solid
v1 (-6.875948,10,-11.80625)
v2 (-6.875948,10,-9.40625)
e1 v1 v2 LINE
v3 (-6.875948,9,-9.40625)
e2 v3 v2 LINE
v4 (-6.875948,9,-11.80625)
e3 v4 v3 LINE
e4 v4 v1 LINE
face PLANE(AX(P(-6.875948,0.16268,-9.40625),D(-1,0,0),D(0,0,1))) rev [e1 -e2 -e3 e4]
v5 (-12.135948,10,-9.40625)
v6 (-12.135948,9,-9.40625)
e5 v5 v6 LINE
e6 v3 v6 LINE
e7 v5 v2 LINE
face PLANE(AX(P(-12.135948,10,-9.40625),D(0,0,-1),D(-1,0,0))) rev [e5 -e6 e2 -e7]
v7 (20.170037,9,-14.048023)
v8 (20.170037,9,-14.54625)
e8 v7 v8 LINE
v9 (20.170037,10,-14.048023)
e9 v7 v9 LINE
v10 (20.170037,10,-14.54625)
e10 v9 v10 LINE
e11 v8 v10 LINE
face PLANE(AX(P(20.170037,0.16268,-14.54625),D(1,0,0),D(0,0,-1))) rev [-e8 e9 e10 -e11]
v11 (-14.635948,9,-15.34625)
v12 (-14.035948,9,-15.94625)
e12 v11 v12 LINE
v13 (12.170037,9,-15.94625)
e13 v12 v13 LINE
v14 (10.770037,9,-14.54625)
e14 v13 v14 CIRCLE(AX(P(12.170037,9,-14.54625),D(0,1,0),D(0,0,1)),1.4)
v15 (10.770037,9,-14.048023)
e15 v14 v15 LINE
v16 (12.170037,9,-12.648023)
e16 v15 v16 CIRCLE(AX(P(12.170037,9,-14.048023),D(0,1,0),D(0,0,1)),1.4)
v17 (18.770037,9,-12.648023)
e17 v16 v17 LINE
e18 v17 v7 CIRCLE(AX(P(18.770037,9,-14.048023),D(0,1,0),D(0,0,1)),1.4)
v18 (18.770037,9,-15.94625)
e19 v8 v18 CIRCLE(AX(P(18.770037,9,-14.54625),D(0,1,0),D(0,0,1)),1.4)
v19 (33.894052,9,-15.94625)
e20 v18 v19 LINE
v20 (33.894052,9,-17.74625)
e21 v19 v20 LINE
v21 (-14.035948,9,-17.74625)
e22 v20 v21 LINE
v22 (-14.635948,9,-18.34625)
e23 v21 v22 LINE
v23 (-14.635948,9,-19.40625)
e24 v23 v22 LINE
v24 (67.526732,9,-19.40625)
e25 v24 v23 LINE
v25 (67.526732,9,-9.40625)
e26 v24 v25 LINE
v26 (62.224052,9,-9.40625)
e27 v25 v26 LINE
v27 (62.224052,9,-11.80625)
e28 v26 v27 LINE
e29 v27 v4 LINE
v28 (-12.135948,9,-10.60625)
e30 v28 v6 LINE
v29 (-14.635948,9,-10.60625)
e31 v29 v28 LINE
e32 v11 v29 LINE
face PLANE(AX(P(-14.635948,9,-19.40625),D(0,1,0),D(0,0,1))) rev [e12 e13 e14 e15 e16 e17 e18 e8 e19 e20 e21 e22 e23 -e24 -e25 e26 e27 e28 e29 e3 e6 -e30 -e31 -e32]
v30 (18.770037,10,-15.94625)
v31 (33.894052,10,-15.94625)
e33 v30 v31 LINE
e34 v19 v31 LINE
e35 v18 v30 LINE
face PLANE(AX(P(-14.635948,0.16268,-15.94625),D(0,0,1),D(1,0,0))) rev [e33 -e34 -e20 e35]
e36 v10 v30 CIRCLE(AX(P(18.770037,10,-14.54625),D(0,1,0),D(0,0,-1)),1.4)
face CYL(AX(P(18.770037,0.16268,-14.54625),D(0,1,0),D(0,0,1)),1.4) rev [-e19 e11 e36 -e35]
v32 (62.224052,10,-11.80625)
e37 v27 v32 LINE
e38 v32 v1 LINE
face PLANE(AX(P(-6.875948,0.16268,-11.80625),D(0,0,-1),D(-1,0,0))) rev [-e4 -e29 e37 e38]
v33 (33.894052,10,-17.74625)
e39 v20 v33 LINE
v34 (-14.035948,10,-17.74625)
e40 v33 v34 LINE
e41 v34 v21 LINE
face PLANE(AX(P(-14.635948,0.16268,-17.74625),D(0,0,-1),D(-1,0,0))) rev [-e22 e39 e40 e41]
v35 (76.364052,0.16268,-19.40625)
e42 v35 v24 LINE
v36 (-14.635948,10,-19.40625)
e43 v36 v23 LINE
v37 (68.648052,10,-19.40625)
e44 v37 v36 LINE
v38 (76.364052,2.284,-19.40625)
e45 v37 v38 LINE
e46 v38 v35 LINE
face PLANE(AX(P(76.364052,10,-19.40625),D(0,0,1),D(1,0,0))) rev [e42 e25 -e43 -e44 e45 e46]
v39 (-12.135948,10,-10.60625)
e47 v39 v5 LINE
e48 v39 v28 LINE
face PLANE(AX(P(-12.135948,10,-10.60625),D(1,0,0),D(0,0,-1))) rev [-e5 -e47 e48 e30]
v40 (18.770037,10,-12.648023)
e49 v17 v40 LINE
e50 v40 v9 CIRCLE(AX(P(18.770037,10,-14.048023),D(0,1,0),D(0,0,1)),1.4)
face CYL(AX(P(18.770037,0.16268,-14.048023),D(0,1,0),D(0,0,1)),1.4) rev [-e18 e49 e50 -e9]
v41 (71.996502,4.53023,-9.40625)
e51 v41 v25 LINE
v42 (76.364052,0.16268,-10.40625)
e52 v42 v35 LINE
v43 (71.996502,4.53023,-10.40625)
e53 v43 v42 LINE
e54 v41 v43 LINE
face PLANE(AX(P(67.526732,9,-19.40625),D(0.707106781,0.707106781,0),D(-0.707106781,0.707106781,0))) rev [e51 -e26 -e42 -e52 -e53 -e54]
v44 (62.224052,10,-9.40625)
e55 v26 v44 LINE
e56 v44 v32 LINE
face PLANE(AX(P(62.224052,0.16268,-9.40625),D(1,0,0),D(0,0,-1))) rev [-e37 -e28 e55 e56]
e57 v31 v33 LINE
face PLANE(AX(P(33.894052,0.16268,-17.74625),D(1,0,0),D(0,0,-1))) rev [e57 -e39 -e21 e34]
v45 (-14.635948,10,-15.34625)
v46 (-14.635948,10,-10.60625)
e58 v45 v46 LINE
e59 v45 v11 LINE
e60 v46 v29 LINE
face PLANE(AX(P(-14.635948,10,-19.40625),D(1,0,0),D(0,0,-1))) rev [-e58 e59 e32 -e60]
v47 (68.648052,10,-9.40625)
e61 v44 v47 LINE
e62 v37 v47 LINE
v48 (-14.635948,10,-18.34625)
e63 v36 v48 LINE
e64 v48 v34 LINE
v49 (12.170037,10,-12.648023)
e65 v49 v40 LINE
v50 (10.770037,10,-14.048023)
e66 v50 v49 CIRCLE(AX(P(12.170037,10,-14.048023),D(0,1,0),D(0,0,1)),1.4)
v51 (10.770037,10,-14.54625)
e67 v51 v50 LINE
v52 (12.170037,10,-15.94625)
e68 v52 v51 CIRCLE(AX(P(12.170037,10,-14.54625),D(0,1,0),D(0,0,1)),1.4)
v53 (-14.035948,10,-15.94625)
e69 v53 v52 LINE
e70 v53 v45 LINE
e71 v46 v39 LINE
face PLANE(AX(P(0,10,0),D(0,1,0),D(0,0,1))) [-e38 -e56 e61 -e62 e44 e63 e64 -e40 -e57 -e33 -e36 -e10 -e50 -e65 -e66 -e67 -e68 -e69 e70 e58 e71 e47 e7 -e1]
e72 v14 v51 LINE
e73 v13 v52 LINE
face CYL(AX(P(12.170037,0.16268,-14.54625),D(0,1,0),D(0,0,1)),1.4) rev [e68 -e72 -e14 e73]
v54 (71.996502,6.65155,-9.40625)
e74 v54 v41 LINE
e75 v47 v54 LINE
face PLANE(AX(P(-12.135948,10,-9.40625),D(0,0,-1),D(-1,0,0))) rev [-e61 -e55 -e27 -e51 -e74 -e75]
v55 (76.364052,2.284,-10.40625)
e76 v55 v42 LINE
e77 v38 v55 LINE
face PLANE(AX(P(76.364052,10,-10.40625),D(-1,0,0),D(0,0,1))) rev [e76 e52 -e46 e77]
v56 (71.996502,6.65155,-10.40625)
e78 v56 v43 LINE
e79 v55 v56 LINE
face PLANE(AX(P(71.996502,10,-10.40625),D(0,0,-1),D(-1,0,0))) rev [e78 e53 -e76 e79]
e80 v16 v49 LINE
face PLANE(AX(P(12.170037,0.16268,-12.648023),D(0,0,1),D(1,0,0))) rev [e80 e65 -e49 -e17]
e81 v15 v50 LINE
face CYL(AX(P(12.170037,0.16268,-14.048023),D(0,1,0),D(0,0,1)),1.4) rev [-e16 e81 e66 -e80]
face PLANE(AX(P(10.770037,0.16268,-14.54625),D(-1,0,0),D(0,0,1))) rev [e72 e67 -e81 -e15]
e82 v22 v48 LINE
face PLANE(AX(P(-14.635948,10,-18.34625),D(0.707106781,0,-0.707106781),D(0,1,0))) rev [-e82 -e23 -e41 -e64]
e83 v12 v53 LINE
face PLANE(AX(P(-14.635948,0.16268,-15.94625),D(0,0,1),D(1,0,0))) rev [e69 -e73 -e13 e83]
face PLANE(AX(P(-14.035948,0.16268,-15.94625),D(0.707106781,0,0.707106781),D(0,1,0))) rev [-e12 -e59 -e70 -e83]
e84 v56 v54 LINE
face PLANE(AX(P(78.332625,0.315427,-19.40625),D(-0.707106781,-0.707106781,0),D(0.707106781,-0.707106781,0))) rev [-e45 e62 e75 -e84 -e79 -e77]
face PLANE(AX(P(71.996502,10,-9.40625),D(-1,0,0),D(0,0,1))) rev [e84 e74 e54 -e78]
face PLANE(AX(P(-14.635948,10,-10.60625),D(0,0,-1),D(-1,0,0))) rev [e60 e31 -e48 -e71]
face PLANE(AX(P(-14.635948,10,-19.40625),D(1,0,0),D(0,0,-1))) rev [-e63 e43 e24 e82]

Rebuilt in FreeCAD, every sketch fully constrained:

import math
import FreeCAD as App
import Part
import Sketcher

V = App.Vector
Q = App.Units.Quantity


def edges_at(feature, points):
    """Names of the edges that pass closest to the given points."""
    edges = feature.Shape.Edges
    near = lambda p: min(range(len(edges)), key=lambda i: edges[i].distToShape(Part.Vertex(*p))[0])
    return sorted({f"Edge{near(p) + 1}" for p in points})


def add_polygon(sketch, points):
    """Adds a closed chain of lines whose ends are joined by coincident constraints."""
    first, n = sketch.GeometryCount, len(points)
    for a, b in zip(points, points[1:] + points[:1]):
        sketch.addGeometry(Part.LineSegment(App.Vector(*a, 0), App.Vector(*b, 0)), False)
    for i in range(n):
        sketch.addConstraint(Sketcher.Constraint("Coincident", first + i, 2, first + (i + 1) % n, 1))

doc = App.newDocument("Part")
params = doc.addObject("Spreadsheet::Sheet", "Params")
for row, (alias, value) in enumerate([
    ("sketch1_width", "91 mm"),
    ("sketch1_height", "1 mm"),
    ("sketch1_height2", "9 mm"),
    ("sketch1_width2", "2.5 mm"),
    ("sketch1_height3", "8.8 mm"),
    ("pad1_length", "10 mm"),
    ("sketch2_height", "9 mm"),
    ("sketch3_width", "69.1 mm"),
    ("sketch3_height", "1.8 mm"),
    ("sketch3_height2", "2.4 mm"),
    ("sketch3_width2", "48.53 mm"),
    ("sketch4_radius", "1.4 mm"),
    ("sketch4_width", "6.6 mm"),
    ("chamfer_size", "0.6 mm"),
], start=1):
    params.set(f"A{row}", alias)
    params.set(f"B{row}", "=" + value)
    params.setAlias(f"B{row}", alias)

body = doc.addObject("PartDesign::Body", "Body")

# Sketch on XZ plane
sketch1 = doc.addObject("Sketcher::SketchObject", "Sketch")
body.addObject(sketch1)
sketch1.AttachmentSupport = (doc.XZ_Plane, [""])
sketch1.MapMode = "FlatFace"
add_polygon(sketch1, [(-14.6, -19.4), (-14.6, -10.6), (-12.1, -10.6), (-12.1, -9.4), (72, -9.4), (72, -10.4), (76.4, -10.4), (76.4, -19.4)])  # lines 0-7
sketch1.addConstraint([
    Sketcher.Constraint("Vertical", 0),
    Sketcher.Constraint("Horizontal", 1),
    Sketcher.Constraint("Vertical", 2),
    Sketcher.Constraint("Horizontal", 3),
    Sketcher.Constraint("Vertical", 4),
    Sketcher.Constraint("Horizontal", 5),
    Sketcher.Constraint("Vertical", 6),
    Sketcher.Constraint("Horizontal", 7),
    Sketcher.Constraint("DistanceX", 7, 2, 7, 1, 91.0),
    Sketcher.Constraint("DistanceY", 4, 2, 4, 1, 1.0),
    Sketcher.Constraint("DistanceY", 6, 2, 6, 1, 9.0),
    Sketcher.Constraint("DistanceX", 1, 1, 1, 2, 2.5),
    Sketcher.Constraint("DistanceY", 0, 1, 0, 2, 8.8),
    Sketcher.Constraint("DistanceX", 3, 1, 3, 2, 84.13245),
    Sketcher.Constraint("DistanceX", 0, 2, -1, 1, 14.635948),
    Sketcher.Constraint("DistanceY", 0, 2, -1, 1, 10.60625),
])
sketch1.setExpression("Constraints[16]", "Params.sketch1_width")
sketch1.setExpression("Constraints[17]", "Params.sketch1_height")
sketch1.setExpression("Constraints[18]", "Params.sketch1_height2")
sketch1.setExpression("Constraints[19]", "Params.sketch1_width2")
sketch1.setExpression("Constraints[20]", "Params.sketch1_height3")
pad1 = doc.addObject("PartDesign::Pad", "Pad")
body.addObject(pad1)
pad1.Profile = sketch1
pad1.setExpression("Length", "Params.pad1_length")
pad1.Reversed = True

# Sketch on XY plane
sketch2 = doc.addObject("Sketcher::SketchObject", "Sketch001")
body.addObject(sketch2)
sketch2.AttachmentSupport = (doc.XY_Plane, [""])
sketch2.MapMode = "FlatFace"
sketch2.AttachmentOffset = App.Placement(V(0, 0, -9.40625), App.Rotation())
add_polygon(sketch2, [(68, 9), (-15, 9), (-15, 0), (77, 0)])  # lines 0-3
add_polygon(sketch2, [(67, 11), (78, 0), (78, 11)])  # lines 4-6
sketch2.addConstraint([
    Sketcher.Constraint("Horizontal", 0),
    Sketcher.Constraint("Vertical", 1),
    Sketcher.Constraint("Horizontal", 2),
    Sketcher.Constraint("Horizontal", 6),
    Sketcher.Constraint("PointOnObject", 1, 2, -1),
    Sketcher.Constraint("Parallel", 3, 4),
    Sketcher.Constraint("DistanceY", 1, 2, 1, 1, 9.0),
    Sketcher.Constraint("Angle", 3, Q("135 deg")),
    Sketcher.Constraint("DistanceX", 0, 2, 0, 1, 82.16268),
    Sketcher.Constraint("DistanceX", 6, 2, 6, 1, 10.96286),
    Sketcher.Constraint("DistanceX", -1, 1, 5, 2, 78.393598),
    Sketcher.Constraint("DistanceX", 0, 2, -1, 1, 14.635948),
    Sketcher.Constraint("Distance", 4, 15.417597),
    Sketcher.Constraint("DistanceY", -1, 1, 4, 2, 0.315427),
])
sketch2.setExpression("Constraints[13]", "Params.sketch2_height")
pocket1 = doc.addObject("PartDesign::Pocket", "Pocket")
body.addObject(pocket1)
pocket1.Profile = sketch2
pocket1.Type = "ThroughAll"

# Sketch on XZ plane
sketch3 = doc.addObject("Sketcher::SketchObject", "Sketch002")
body.addObject(sketch3)
sketch3.AttachmentSupport = (doc.XZ_Plane, [""])
sketch3.MapMode = "FlatFace"
sketch3.AttachmentOffset = App.Placement(V(0, 0, -10), App.Rotation())
add_polygon(sketch3, [(-14.6, -17.7), (-14.6, -15.9), (33.9, -15.9), (33.9, -17.7)])  # lines 0-3
add_polygon(sketch3, [(-6.9, -11.8), (-6.9, -9.4), (62.2, -9.4), (62.2, -11.8)])  # lines 4-7
sketch3.addConstraint([
    Sketcher.Constraint("Vertical", 0),
    Sketcher.Constraint("Horizontal", 1),
    Sketcher.Constraint("Vertical", 2),
    Sketcher.Constraint("Horizontal", 3),
    Sketcher.Constraint("Vertical", 4),
    Sketcher.Constraint("Horizontal", 5),
    Sketcher.Constraint("Vertical", 6),
    Sketcher.Constraint("Horizontal", 7),
    Sketcher.Constraint("DistanceX", 5, 1, 5, 2, 69.1),
    Sketcher.Constraint("DistanceY", 0, 1, 0, 2, 1.8),
    Sketcher.Constraint("DistanceY", 4, 1, 4, 2, 2.4),
    Sketcher.Constraint("DistanceX", 1, 1, 1, 2, 48.53),
    Sketcher.Constraint("DistanceX", 0, 2, 4, 2, 7.76),
    Sketcher.Constraint("DistanceY", 0, 2, 4, 2, 6.54),
    Sketcher.Constraint("DistanceX", 0, 2, -1, 1, 14.635948),
    Sketcher.Constraint("DistanceY", 0, 2, -1, 1, 15.94625),
])
sketch3.setExpression("Constraints[16]", "Params.sketch3_width")
sketch3.setExpression("Constraints[17]", "Params.sketch3_height")
sketch3.setExpression("Constraints[18]", "Params.sketch3_height2")
sketch3.setExpression("Constraints[19]", "Params.sketch3_width2")
pocket2 = doc.addObject("PartDesign::Pocket", "Pocket001")
body.addObject(pocket2)
pocket2.Profile = sketch3
pocket2.Type = "ThroughAll"
pocket2.Reversed = True

# Sketch on XZ plane
sketch4 = doc.addObject("Sketcher::SketchObject", "Sketch003")
body.addObject(sketch4)
sketch4.AttachmentSupport = (doc.XZ_Plane, [""])
sketch4.MapMode = "FlatFace"
sketch4.AttachmentOffset = App.Placement(V(0, 0, -10), App.Rotation())
sketch4.addGeometry([
    Part.LineSegment(V(18.77, -15.95, 0), V(12.17, -15.95, 0)),  # 0
    Part.ArcOfCircle(Part.Circle(V(12.17, -14.55, 0), V(0, 0, 1), 1.4), math.radians(180), math.radians(270)),  # 1
    Part.LineSegment(V(10.77, -14.55, 0), V(10.77, -14.05, 0)),  # 2
    Part.ArcOfCircle(Part.Circle(V(12.17, -14.05, 0), V(0, 0, 1), 1.4), math.radians(90), math.radians(180)),  # 3
    Part.LineSegment(V(12.17, -12.65, 0), V(18.77, -12.65, 0)),  # 4
    Part.ArcOfCircle(Part.Circle(V(18.77, -14.05, 0), V(0, 0, 1), 1.4), math.radians(0), math.radians(90)),  # 5
    Part.LineSegment(V(20.17, -14.05, 0), V(20.17, -14.55, 0)),  # 6
    Part.ArcOfCircle(Part.Circle(V(18.77, -14.55, 0), V(0, 0, 1), 1.4), math.radians(-90), math.radians(0)),  # 7
], False)
sketch4.addConstraint([
    Sketcher.Constraint("Tangent", 0, 2, 1, 2),
    Sketcher.Constraint("Tangent", 1, 1, 2, 1),
    Sketcher.Constraint("Tangent", 2, 2, 3, 2),
    Sketcher.Constraint("Tangent", 3, 1, 4, 1),
    Sketcher.Constraint("Tangent", 4, 2, 5, 2),
    Sketcher.Constraint("Tangent", 5, 1, 6, 1),
    Sketcher.Constraint("Tangent", 6, 2, 7, 2),
    Sketcher.Constraint("Tangent", 7, 1, 0, 1),
    Sketcher.Constraint("Horizontal", 0),
    Sketcher.Constraint("Vertical", 2),
    Sketcher.Constraint("Horizontal", 4),
    Sketcher.Constraint("Vertical", 6),
    Sketcher.Constraint("Equal", 1, 3),
    Sketcher.Constraint("Equal", 3, 5),
    Sketcher.Constraint("Equal", 5, 7),
    Sketcher.Constraint("Radius", 1, 1.4),
    Sketcher.Constraint("DistanceX", 0, 2, 0, 1, 6.6),
    Sketcher.Constraint("DistanceY", 2, 1, 2, 2, 0.498227),
    Sketcher.Constraint("DistanceY", 1, 3, -1, 1, 14.54625),
    Sketcher.Constraint("DistanceX", -1, 1, 1, 3, 12.170037),
])
sketch4.setExpression("Constraints[15]", "Params.sketch4_radius")
sketch4.setExpression("Constraints[16]", "Params.sketch4_width")
pocket3 = doc.addObject("PartDesign::Pocket", "Pocket002")
body.addObject(pocket3)
pocket3.Profile = sketch4
pocket3.Type = "ThroughAll"
pocket3.Reversed = True
doc.recompute()

chamfer = doc.addObject("PartDesign::Chamfer", "Chamfer")
body.addObject(chamfer)
chamfer.Base = (pocket3, edges_at(pocket3, [(-14.636, 9.5, -15.946), (-14.636, 9.5, -17.746)]))
chamfer.setExpression("Size", "Params.chamfer_size")

doc.recompute()
